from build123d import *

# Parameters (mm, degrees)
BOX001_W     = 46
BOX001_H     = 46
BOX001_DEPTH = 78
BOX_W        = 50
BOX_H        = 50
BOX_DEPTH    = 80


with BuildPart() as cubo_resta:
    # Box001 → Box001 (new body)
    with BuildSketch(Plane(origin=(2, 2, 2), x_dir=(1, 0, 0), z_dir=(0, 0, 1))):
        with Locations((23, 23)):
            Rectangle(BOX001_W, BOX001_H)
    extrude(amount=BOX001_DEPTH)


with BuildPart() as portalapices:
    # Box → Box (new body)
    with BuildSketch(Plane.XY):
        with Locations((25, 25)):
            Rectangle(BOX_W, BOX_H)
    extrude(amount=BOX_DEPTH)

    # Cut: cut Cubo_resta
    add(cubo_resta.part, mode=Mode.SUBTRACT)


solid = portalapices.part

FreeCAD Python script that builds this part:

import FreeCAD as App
import Part
import Sketcher
from FreeCAD import Vector
Q = App.Units.Quantity

doc = App.newDocument("Part")
body = doc.addObject("PartDesign::Body", "Body")

# Sketch on XY plane
sketch1 = body.newObject("Sketcher::SketchObject", "Sketch")
sketch1.AttachmentSupport = (doc.getObject("XY_Plane"), [""])
sketch1.MapMode = "FlatFace"
sketch1.AttachmentOffset = App.Placement(Vector(0, 0, 2), App.Rotation())
sketch1.addGeometry([
    Part.LineSegment(Vector(2, 48, 0), Vector(2, 2, 0)),
    Part.LineSegment(Vector(2, 2, 0), Vector(48, 2, 0)),
    Part.LineSegment(Vector(48, 2, 0), Vector(48, 48, 0)),
    Part.LineSegment(Vector(48, 48, 0), Vector(2, 48, 0)),
], False)
sketch1.addConstraint([
    Sketcher.Constraint("Coincident", 0, 2, 1, 1),
    Sketcher.Constraint("Coincident", 1, 2, 2, 1),
    Sketcher.Constraint("Coincident", 2, 2, 3, 1),
    Sketcher.Constraint("Coincident", 3, 2, 0, 1),
    Sketcher.Constraint("Vertical", 0),
    Sketcher.Constraint("Horizontal", 1),
    Sketcher.Constraint("Vertical", 2),
    Sketcher.Constraint("Horizontal", 3),
    Sketcher.Constraint("Equal", 3, 0),
    Sketcher.Constraint("DistanceX", 1, 1, 1, 2, Q("46 mm")),
    Sketcher.Constraint("DistanceX", -1, 1, 0, 2, Q("2 mm")),
    Sketcher.Constraint("DistanceY", -1, 1, 0, 2, Q("2 mm")),
])
pad1 = body.newObject("PartDesign::Pad", "Pad")
pad1.Profile = sketch1
pad1.Length = 78
body2 = doc.addObject("PartDesign::Body", "Body001")

# Sketch on XY plane
sketch2 = body2.newObject("Sketcher::SketchObject", "Sketch001")
sketch2.AttachmentSupport = (doc.getObject("XY_Plane001"), [""])
sketch2.MapMode = "FlatFace"
sketch2.addGeometry([
    Part.LineSegment(Vector(0, 50, 0), Vector(0, 0, 0)),
    Part.LineSegment(Vector(0, 0, 0), Vector(50, 0, 0)),
    Part.LineSegment(Vector(50, 0, 0), Vector(50, 50, 0)),
    Part.LineSegment(Vector(50, 50, 0), Vector(0, 50, 0)),
], False)
sketch2.addConstraint([
    Sketcher.Constraint("Coincident", 0, 2, 1, 1),
    Sketcher.Constraint("Coincident", 1, 2, 2, 1),
    Sketcher.Constraint("Coincident", 2, 2, 3, 1),
    Sketcher.Constraint("Coincident", 3, 2, 0, 1),
    Sketcher.Constraint("Vertical", 0),
    Sketcher.Constraint("Horizontal", 1),
    Sketcher.Constraint("Vertical", 2),
    Sketcher.Constraint("Horizontal", 3),
    Sketcher.Constraint("Coincident", 0, 2, -1, 1),
    Sketcher.Constraint("Equal", 3, 0),
    Sketcher.Constraint("DistanceX", 1, 1, 1, 2, Q("50 mm")),
])
pad2 = body2.newObject("PartDesign::Pad", "Pad001")
pad2.Profile = sketch2
pad2.Length = 80
doc.recompute()

boolean = body2.newObject("PartDesign::Boolean", "Boolean")
boolean.Type = "Cut"
boolean.addObjects([body])

doc.recompute()
